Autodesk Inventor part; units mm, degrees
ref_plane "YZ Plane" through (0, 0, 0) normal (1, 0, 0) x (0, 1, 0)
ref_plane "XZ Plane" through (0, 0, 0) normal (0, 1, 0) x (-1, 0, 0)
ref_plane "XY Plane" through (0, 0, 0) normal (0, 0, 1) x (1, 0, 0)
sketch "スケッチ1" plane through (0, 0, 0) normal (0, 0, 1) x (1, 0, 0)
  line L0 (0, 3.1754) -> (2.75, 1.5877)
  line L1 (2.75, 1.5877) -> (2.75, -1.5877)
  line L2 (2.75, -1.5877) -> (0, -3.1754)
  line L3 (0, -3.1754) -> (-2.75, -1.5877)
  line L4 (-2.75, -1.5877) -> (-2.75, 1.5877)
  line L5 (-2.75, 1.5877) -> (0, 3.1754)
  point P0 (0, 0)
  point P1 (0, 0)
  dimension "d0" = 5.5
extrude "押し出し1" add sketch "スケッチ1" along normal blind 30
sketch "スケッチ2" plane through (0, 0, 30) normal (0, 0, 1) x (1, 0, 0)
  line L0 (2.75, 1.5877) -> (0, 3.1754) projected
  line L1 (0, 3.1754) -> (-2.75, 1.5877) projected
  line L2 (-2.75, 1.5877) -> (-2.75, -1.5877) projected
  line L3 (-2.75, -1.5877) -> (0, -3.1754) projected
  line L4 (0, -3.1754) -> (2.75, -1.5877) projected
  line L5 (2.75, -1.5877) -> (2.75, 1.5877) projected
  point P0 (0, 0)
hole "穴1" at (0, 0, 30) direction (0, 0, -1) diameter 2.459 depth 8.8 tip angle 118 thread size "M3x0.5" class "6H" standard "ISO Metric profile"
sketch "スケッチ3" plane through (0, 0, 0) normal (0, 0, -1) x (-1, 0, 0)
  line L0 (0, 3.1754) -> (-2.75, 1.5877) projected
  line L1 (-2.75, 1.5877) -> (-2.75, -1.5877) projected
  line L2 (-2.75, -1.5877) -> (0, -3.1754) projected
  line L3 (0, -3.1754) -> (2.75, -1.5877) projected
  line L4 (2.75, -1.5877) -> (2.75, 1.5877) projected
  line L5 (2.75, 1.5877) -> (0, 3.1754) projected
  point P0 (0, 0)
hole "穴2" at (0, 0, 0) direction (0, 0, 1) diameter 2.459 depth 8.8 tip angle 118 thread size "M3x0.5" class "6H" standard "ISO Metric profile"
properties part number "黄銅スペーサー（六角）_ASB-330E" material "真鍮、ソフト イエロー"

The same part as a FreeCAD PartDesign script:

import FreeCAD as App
import Part
import Sketcher
from FreeCAD import Vector
Q = App.Units.Quantity

doc = App.newDocument("Part")
body = doc.addObject("PartDesign::Body", "Body")

sketch1 = doc.addObject("Sketcher::SketchObject", "Sketch")
body.addObject(sketch1)
sketch1.AttachmentSupport = (doc.XY_Plane, [""])
sketch1.MapMode = "FlatFace"
sketch1.addGeometry(Part.LineSegment(Vector(2.8, 1.6, 0), Vector(0, 3.2, 0)), False)
sketch1.addGeometry(Part.LineSegment(Vector(0, 3.2, 0), Vector(-2.8, 1.6, 0)), False)
sketch1.addGeometry(Part.LineSegment(Vector(-2.8, 1.6, 0), Vector(-2.8, -1.6, 0)), False)
sketch1.addGeometry(Part.LineSegment(Vector(-2.8, -1.6, 0), Vector(0, -3.2, 0)), False)
sketch1.addGeometry(Part.LineSegment(Vector(0, -3.2, 0), Vector(2.8, -1.6, 0)), False)
sketch1.addGeometry(Part.LineSegment(Vector(2.8, -1.6, 0), Vector(2.8, 1.6, 0)), False)
sketch1.addConstraint(Sketcher.Constraint("Coincident", 0, 2, 1, 1))
sketch1.addConstraint(Sketcher.Constraint("Coincident", 1, 2, 2, 1))
sketch1.addConstraint(Sketcher.Constraint("Coincident", 2, 2, 3, 1))
sketch1.addConstraint(Sketcher.Constraint("Coincident", 3, 2, 4, 1))
sketch1.addConstraint(Sketcher.Constraint("Coincident", 4, 2, 5, 1))
sketch1.addConstraint(Sketcher.Constraint("Coincident", 5, 2, 0, 1))
sketch1.addConstraint(Sketcher.Constraint("Vertical", 2))
sketch1.addConstraint(Sketcher.Constraint("Vertical", 5))
sketch1.addConstraint(Sketcher.Constraint("Symmetric", 0, 2, 3, 2, -1, 1))
sketch1.addConstraint(Sketcher.Constraint("Symmetric", 1, 2, 4, 2, -1, 1))
sketch1.addConstraint(Sketcher.Constraint("PointOnObject", 0, 2, -2))
sketch1.addConstraint(Sketcher.Constraint("Parallel", 0, 3))
sketch1.addConstraint(Sketcher.Constraint("Horizontal", 2, 2, 4, 2))
sketch1.addConstraint(Sketcher.Constraint("DistanceX", 2, 2, 4, 2, 5.5))
sketch1.addConstraint(Sketcher.Constraint("Angle", 0, Q("150.0002 deg")))
sketch1.addConstraint(Sketcher.Constraint("DistanceY", 2, 2, 2, 1, 3.1754))
pad1 = doc.addObject("PartDesign::Pad", "Pad")
body.addObject(pad1)
pad1.Profile = sketch1
pad1.Length = 30

sketch2 = doc.addObject("Sketcher::SketchObject", "Sketch001")
body.addObject(sketch2)
sketch2.AttachmentSupport = (doc.XY_Plane, [""])
sketch2.MapMode = "FlatFace"
sketch2.AttachmentOffset = App.Placement(Vector(0, 0, 30), App.Rotation())
sketch2.addGeometry(Part.Circle(Vector(0, 0, 0), Vector(0, 0, 1), 1.2), False)
sketch2.addConstraint(Sketcher.Constraint("Coincident", 0, 3, -1, 1))
sketch2.addConstraint(Sketcher.Constraint("Diameter", 0, 2.459))
doc.recompute()
hole = doc.addObject("PartDesign::Hole", "Hole")
body.addObject(hole)
hole.Profile = sketch2
hole.ThreadType = "None"
hole.Diameter = 2.459
hole.DepthType = "Dimension"
hole.Depth = 8.8
hole.DrillPoint = "Angled"
hole.DrillPointAngle = 118

sketch3 = doc.addObject("Sketcher::SketchObject", "Sketch002")
body.addObject(sketch3)
sketch3.AttachmentSupport = (doc.XY_Plane, [""])
sketch3.MapMode = "FlatFace"
sketch3.addGeometry(Part.Circle(Vector(0, 0, 0), Vector(0, 0, 1), 1.2), False)
sketch3.addConstraint(Sketcher.Constraint("Coincident", 0, 3, -1, 1))
sketch3.addConstraint(Sketcher.Constraint("Diameter", 0, 2.459))
doc.recompute()
hole2 = doc.addObject("PartDesign::Hole", "Hole001")
body.addObject(hole2)
hole2.Profile = sketch3
hole2.ThreadType = "None"
hole2.Diameter = 2.459
hole2.DepthType = "Dimension"
hole2.Depth = 8.8
hole2.DrillPoint = "Angled"
hole2.DrillPointAngle = 118
hole2.Reversed = True

doc.recompute()
